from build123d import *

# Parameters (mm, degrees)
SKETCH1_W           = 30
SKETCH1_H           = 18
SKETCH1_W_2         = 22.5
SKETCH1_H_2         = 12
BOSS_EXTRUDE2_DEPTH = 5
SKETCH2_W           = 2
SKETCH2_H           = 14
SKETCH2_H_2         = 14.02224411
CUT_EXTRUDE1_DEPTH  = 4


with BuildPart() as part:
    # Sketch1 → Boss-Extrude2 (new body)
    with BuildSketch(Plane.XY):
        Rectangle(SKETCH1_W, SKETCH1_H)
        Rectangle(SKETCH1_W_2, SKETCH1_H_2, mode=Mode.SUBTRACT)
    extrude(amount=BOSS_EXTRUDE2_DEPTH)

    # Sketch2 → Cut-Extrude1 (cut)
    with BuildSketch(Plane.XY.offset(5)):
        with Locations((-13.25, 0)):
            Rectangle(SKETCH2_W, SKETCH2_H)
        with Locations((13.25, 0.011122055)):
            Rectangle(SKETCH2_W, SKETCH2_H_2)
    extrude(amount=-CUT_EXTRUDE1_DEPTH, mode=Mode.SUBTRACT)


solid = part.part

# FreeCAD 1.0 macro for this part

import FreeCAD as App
import Part
import Sketcher

V = App.Vector
Q = App.Units.Quantity


def add_polygon(sketch, points):
    """Adds a closed chain of lines whose ends are joined by coincident constraints."""
    first, n = sketch.GeometryCount, len(points)
    for a, b in zip(points, points[1:] + points[:1]):
        sketch.addGeometry(Part.LineSegment(App.Vector(*a, 0), App.Vector(*b, 0)), False)
    for i in range(n):
        sketch.addConstraint(Sketcher.Constraint("Coincident", first + i, 2, first + (i + 1) % n, 1))

doc = App.newDocument("Part")
body = doc.addObject("PartDesign::Body", "Body")

sketch1 = body.newObject("Sketcher::SketchObject", "Sketch")
sketch1.AttachmentSupport = (doc.getObject("XY_Plane"), [""])
sketch1.MapMode = "FlatFace"
add_polygon(sketch1, [(-15, 9), (-15, -9), (15, -9), (15, 9)])
add_polygon(sketch1, [(11, -6), (-11, -6), (-11, 6), (11, 6)])
sketch1.addConstraint([
    Sketcher.Constraint("Vertical", 0),
    Sketcher.Constraint("Horizontal", 1),
    Sketcher.Constraint("Vertical", 2),
    Sketcher.Constraint("Horizontal", 3),
    Sketcher.Constraint("Horizontal", 4),
    Sketcher.Constraint("Vertical", 5),
    Sketcher.Constraint("Horizontal", 6),
    Sketcher.Constraint("Vertical", 7),
    Sketcher.Constraint("Symmetric", 0, 2, 2, 2, -1, 1),
    Sketcher.Constraint("Symmetric", 4, 2, 6, 2, -1, 1),
    Sketcher.Constraint("DistanceX", 1, 1, 1, 2, Q("30 mm")),
    Sketcher.Constraint("DistanceY", 0, 2, 0, 1, Q("18 mm")),
    Sketcher.Constraint("DistanceY", 5, 1, 5, 2, Q("12 mm")),
    Sketcher.Constraint("DistanceX", 4, 2, 4, 1, Q("22.5 mm")),
])
pad1 = body.newObject("PartDesign::Pad", "Pad")
pad1.Profile = sketch1
pad1.Length = 5

sketch2 = body.newObject("Sketcher::SketchObject", "Sketch001")
sketch2.AttachmentSupport = (doc.getObject("XY_Plane"), [""])
sketch2.MapMode = "FlatFace"
sketch2.AttachmentOffset = App.Placement(V(0, 0, 5), App.Rotation())
add_polygon(sketch2, [(-14.2, 7), (-14.2, -7), (-12.2, -7), (-12.2, 7)])
add_polygon(sketch2, [(12.2, 7), (12.2, -7), (14.2, -7), (14.2, 7)])
sketch2.addConstraint([
    Sketcher.Constraint("Vertical", 0),
    Sketcher.Constraint("Horizontal", 1),
    Sketcher.Constraint("Vertical", 2),
    Sketcher.Constraint("Horizontal", 3),
    Sketcher.Constraint("Vertical", 4),
    Sketcher.Constraint("Horizontal", 5),
    Sketcher.Constraint("Vertical", 6),
    Sketcher.Constraint("Horizontal", 7),
    Sketcher.Constraint("Symmetric", 2, 2, 4, 2, -1, 1),
    Sketcher.Constraint("Symmetric", 0, 2, 5, 2, -2),
    Sketcher.Constraint("DistanceX", 1, 1, 1, 2, Q("2 mm")),
    Sketcher.Constraint("DistanceY", 0, 2, 0, 1, Q("14 mm")),
    Sketcher.Constraint("DistanceX", 1, 2, 4, 2, Q("24.5 mm")),
    Sketcher.Constraint("DistanceY", 4, 2, 4, 1, Q("14.022244 mm")),
])
pocket1 = body.newObject("PartDesign::Pocket", "Pocket")
pocket1.Profile = sketch2
pocket1.Length = 4

doc.recompute()
